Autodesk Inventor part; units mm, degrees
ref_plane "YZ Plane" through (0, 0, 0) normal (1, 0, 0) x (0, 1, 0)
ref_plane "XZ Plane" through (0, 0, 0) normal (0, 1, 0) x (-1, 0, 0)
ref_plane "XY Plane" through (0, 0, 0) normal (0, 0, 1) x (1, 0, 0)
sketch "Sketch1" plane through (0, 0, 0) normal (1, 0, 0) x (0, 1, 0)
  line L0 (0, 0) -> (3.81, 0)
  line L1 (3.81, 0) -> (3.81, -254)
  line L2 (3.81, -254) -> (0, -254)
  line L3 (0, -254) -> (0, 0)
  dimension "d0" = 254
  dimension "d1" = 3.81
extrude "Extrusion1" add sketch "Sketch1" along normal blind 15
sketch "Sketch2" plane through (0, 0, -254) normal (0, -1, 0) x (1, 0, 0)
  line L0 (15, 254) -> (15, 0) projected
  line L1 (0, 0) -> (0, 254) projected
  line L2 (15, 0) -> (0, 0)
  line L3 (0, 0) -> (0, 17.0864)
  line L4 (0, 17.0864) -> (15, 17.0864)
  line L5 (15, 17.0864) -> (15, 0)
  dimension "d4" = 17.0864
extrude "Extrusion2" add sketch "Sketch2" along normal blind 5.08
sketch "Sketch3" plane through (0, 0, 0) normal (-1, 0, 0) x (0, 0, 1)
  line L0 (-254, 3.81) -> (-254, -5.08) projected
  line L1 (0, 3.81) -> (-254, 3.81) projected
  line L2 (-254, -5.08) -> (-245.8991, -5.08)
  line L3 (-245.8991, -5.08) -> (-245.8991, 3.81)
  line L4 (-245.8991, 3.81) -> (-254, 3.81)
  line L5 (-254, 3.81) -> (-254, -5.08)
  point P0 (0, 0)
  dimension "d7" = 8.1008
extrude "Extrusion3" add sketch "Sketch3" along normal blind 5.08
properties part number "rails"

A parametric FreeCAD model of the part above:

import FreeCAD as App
import Part
import Sketcher
Q = App.Units.Quantity

doc = App.newDocument("Part")
body = doc.addObject("PartDesign::Body", "Body")

# Sketch on YZ plane
sketch1 = doc.addObject("Sketcher::SketchObject", "Sketch")
body.addObject(sketch1)
sketch1.AttachmentSupport = (doc.YZ_Plane, [""])
sketch1.MapMode = "FlatFace"
sketch1.addGeometry([
    Part.LineSegment(App.Vector(3.8, 0, 0), App.Vector(0, 0, 0)),
    Part.LineSegment(App.Vector(0, 0, 0), App.Vector(0, -254, 0)),
    Part.LineSegment(App.Vector(0, -254, 0), App.Vector(3.8, -254, 0)),
    Part.LineSegment(App.Vector(3.8, -254, 0), App.Vector(3.8, 0, 0)),
], False)
sketch1.addConstraint([
    Sketcher.Constraint("Coincident", 0, 2, 1, 1),
    Sketcher.Constraint("Coincident", 1, 2, 2, 1),
    Sketcher.Constraint("Coincident", 2, 2, 3, 1),
    Sketcher.Constraint("Coincident", 3, 2, 0, 1),
    Sketcher.Constraint("Horizontal", 0),
    Sketcher.Constraint("Vertical", 1),
    Sketcher.Constraint("Horizontal", 2),
    Sketcher.Constraint("Vertical", 3),
    Sketcher.Constraint("Coincident", 0, 2, -1, 1),
    Sketcher.Constraint("DistanceY", 1, 2, 1, 1, Q("10 in")),
    Sketcher.Constraint("DistanceX", 0, 2, 0, 1, Q("0.15 in")),
])
pad1 = doc.addObject("PartDesign::Pad", "Pad")
body.addObject(pad1)
pad1.Profile = sketch1
pad1.Length = 15

# Sketch on XZ plane
sketch2 = doc.addObject("Sketcher::SketchObject", "Sketch001")
body.addObject(sketch2)
sketch2.AttachmentSupport = (doc.XZ_Plane, [""])
sketch2.MapMode = "FlatFace"
sketch2.addGeometry([
    Part.LineSegment(App.Vector(15, -254, 0), App.Vector(15, -237, 0)),
    Part.LineSegment(App.Vector(15, -237, 0), App.Vector(0, -237, 0)),
    Part.LineSegment(App.Vector(0, -237, 0), App.Vector(0, -254, 0)),
    Part.LineSegment(App.Vector(0, -254, 0), App.Vector(15, -254, 0)),
], False)
sketch2.addConstraint([
    Sketcher.Constraint("Coincident", 0, 2, 1, 1),
    Sketcher.Constraint("Coincident", 1, 2, 2, 1),
    Sketcher.Constraint("Coincident", 2, 2, 3, 1),
    Sketcher.Constraint("Coincident", 3, 2, 0, 1),
    Sketcher.Constraint("Vertical", 0),
    Sketcher.Constraint("Horizontal", 1),
    Sketcher.Constraint("Vertical", 2),
    Sketcher.Constraint("Horizontal", 3),
    Sketcher.Constraint("PointOnObject", 1, 2, -2),
    Sketcher.Constraint("DistanceY", 0, 1, 0, 2, Q("0.6727 in")),
    Sketcher.Constraint("DistanceY", 2, 2, -1, 1, Q("10 in")),
    Sketcher.Constraint("DistanceX", 1, 2, 1, 1, 15.0),
])
pad2 = doc.addObject("PartDesign::Pad", "Pad001")
body.addObject(pad2)
pad2.Profile = sketch2
pad2.Length = Q("0.2 in")

# Sketch on YZ plane
sketch3 = doc.addObject("Sketcher::SketchObject", "Sketch002")
body.addObject(sketch3)
sketch3.AttachmentSupport = (doc.YZ_Plane, [""])
sketch3.MapMode = "FlatFace"
sketch3.addGeometry([
    Part.LineSegment(App.Vector(4, -246, 0), App.Vector(4, -254, 0)),
    Part.LineSegment(App.Vector(4, -254, 0), App.Vector(-5, -254, 0)),
    Part.LineSegment(App.Vector(-5, -254, 0), App.Vector(-5, -246, 0)),
    Part.LineSegment(App.Vector(-5, -246, 0), App.Vector(4, -246, 0)),
], False)
sketch3.addConstraint([
    Sketcher.Constraint("Coincident", 0, 2, 1, 1),
    Sketcher.Constraint("Coincident", 1, 2, 2, 1),
    Sketcher.Constraint("Coincident", 2, 2, 3, 1),
    Sketcher.Constraint("Coincident", 3, 2, 0, 1),
    Sketcher.Constraint("Vertical", 0),
    Sketcher.Constraint("Horizontal", 1),
    Sketcher.Constraint("Vertical", 2),
    Sketcher.Constraint("Horizontal", 3),
    Sketcher.Constraint("DistanceY", 0, 2, -1, 1, Q("10 in")),
    Sketcher.Constraint("DistanceX", 1, 2, 1, 1, Q("0.35 in")),
    Sketcher.Constraint("DistanceY", 0, 2, 0, 1, 8.101),
    Sketcher.Constraint("DistanceX", 1, 2, -1, 1, Q("0.2 in")),
])
pad3 = doc.addObject("PartDesign::Pad", "Pad002")
body.addObject(pad3)
pad3.Profile = sketch3
pad3.Length = Q("0.2 in")
pad3.Reversed = True

doc.recompute()
